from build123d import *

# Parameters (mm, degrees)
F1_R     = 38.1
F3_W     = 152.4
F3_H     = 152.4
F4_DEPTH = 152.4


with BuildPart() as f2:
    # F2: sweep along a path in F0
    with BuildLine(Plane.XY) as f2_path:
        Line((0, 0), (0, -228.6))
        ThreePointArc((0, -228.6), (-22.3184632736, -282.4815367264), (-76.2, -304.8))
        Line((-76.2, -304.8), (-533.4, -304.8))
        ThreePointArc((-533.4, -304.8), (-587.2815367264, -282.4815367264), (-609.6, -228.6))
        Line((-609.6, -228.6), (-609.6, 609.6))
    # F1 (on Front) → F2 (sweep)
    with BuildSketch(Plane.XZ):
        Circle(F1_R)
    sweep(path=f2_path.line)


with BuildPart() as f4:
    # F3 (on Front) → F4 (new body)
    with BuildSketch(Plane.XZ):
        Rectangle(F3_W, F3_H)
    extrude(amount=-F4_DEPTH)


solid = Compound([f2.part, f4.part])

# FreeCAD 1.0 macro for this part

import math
import FreeCAD as App
import Part
import Sketcher
Q = App.Units.Quantity


def add_polygon(sketch, points):
    """Adds a closed chain of lines whose ends are joined by coincident constraints."""
    first, n = sketch.GeometryCount, len(points)
    for a, b in zip(points, points[1:] + points[:1]):
        sketch.addGeometry(Part.LineSegment(App.Vector(*a, 0), App.Vector(*b, 0)), False)
    for i in range(n):
        sketch.addConstraint(Sketcher.Constraint("Coincident", first + i, 2, first + (i + 1) % n, 1))

doc = App.newDocument("Part")
body = doc.addObject("PartDesign::Body", "Body")

sketch1 = body.newObject("Sketcher::SketchObject", "Sketch")
sketch1.AttachmentSupport = (doc.getObject("XZ_Plane"), [""])
sketch1.MapMode = "FlatFace"
sketch1.addGeometry(Part.Circle(App.Vector(0, 0, 0), App.Vector(0, 0, 1), 38), False)
sketch1.addConstraint(Sketcher.Constraint("Coincident", 0, 3, -1, 1))
sketch1.addConstraint(Sketcher.Constraint("Diameter", 0, Q("3 in")))

sketch2 = body.newObject("Sketcher::SketchObject", "Sketch001")
sketch2.AttachmentSupport = (doc.getObject("XY_Plane"), [""])
sketch2.MapMode = "FlatFace"
sketch2.addGeometry(Part.LineSegment(App.Vector(0, 0, 0), App.Vector(0, -229, 0)), False)
sketch2.addGeometry(Part.ArcOfCircle(Part.Circle(App.Vector(-76, -229, 0), App.Vector(0, 0, 1), 76), math.radians(-90), math.radians(0)), False)
sketch2.addGeometry(Part.LineSegment(App.Vector(-76, -305, 0), App.Vector(-533, -305, 0)), False)
sketch2.addGeometry(Part.ArcOfCircle(Part.Circle(App.Vector(-533, -229, 0), App.Vector(0, 0, 1), 76), math.radians(180), math.radians(270)), False)
sketch2.addGeometry(Part.LineSegment(App.Vector(-610, -229, 0), App.Vector(-610, 610, 0)), False)
sketch2.addConstraint(Sketcher.Constraint("Tangent", 0, 2, 1, 2))
sketch2.addConstraint(Sketcher.Constraint("Tangent", 1, 1, 2, 1))
sketch2.addConstraint(Sketcher.Constraint("Tangent", 2, 2, 3, 2))
sketch2.addConstraint(Sketcher.Constraint("Tangent", 3, 1, 4, 1))
sketch2.addConstraint(Sketcher.Constraint("Vertical", 0))
sketch2.addConstraint(Sketcher.Constraint("Horizontal", 2))
sketch2.addConstraint(Sketcher.Constraint("Vertical", 4))
sketch2.addConstraint(Sketcher.Constraint("Coincident", 0, 1, -1, 1))
sketch2.addConstraint(Sketcher.Constraint("Equal", 1, 3))
sketch2.addConstraint(Sketcher.Constraint("Radius", 1, Q("3 in")))
sketch2.addConstraint(Sketcher.Constraint("DistanceX", 2, 2, 2, 1, Q("18 in")))
sketch2.addConstraint(Sketcher.Constraint("DistanceY", 0, 2, 0, 1, Q("9 in")))
sketch2.addConstraint(Sketcher.Constraint("DistanceY", 4, 1, 4, 2, Q("33 in")))
doc.recompute()

additivepipe = body.newObject("PartDesign::AdditivePipe", "AdditivePipe")
additivepipe.Profile = sketch1
additivepipe.Spine = (sketch2, ["Edge1", "Edge2", "Edge3", "Edge4", "Edge5"])
body2 = doc.addObject("PartDesign::Body", "Body001")

sketch3 = body2.newObject("Sketcher::SketchObject", "Sketch002")
sketch3.AttachmentSupport = (doc.getObject("XZ_Plane001"), [""])
sketch3.MapMode = "FlatFace"
add_polygon(sketch3, [(-76, 76), (-76, -76), (76, -76), (76, 76)])
sketch3.addConstraint(Sketcher.Constraint("Vertical", 0))
sketch3.addConstraint(Sketcher.Constraint("Horizontal", 1))
sketch3.addConstraint(Sketcher.Constraint("Vertical", 2))
sketch3.addConstraint(Sketcher.Constraint("Horizontal", 3))
sketch3.addConstraint(Sketcher.Constraint("Symmetric", 0, 2, 2, 2, -1, 1))
sketch3.addConstraint(Sketcher.Constraint("Equal", 3, 0))
sketch3.addConstraint(Sketcher.Constraint("DistanceX", 1, 1, 1, 2, Q("6 in")))
pad1 = body2.newObject("PartDesign::Pad", "Pad")
pad1.Profile = sketch3
pad1.Length = Q("6 in")
pad1.Reversed = True

doc.recompute()
